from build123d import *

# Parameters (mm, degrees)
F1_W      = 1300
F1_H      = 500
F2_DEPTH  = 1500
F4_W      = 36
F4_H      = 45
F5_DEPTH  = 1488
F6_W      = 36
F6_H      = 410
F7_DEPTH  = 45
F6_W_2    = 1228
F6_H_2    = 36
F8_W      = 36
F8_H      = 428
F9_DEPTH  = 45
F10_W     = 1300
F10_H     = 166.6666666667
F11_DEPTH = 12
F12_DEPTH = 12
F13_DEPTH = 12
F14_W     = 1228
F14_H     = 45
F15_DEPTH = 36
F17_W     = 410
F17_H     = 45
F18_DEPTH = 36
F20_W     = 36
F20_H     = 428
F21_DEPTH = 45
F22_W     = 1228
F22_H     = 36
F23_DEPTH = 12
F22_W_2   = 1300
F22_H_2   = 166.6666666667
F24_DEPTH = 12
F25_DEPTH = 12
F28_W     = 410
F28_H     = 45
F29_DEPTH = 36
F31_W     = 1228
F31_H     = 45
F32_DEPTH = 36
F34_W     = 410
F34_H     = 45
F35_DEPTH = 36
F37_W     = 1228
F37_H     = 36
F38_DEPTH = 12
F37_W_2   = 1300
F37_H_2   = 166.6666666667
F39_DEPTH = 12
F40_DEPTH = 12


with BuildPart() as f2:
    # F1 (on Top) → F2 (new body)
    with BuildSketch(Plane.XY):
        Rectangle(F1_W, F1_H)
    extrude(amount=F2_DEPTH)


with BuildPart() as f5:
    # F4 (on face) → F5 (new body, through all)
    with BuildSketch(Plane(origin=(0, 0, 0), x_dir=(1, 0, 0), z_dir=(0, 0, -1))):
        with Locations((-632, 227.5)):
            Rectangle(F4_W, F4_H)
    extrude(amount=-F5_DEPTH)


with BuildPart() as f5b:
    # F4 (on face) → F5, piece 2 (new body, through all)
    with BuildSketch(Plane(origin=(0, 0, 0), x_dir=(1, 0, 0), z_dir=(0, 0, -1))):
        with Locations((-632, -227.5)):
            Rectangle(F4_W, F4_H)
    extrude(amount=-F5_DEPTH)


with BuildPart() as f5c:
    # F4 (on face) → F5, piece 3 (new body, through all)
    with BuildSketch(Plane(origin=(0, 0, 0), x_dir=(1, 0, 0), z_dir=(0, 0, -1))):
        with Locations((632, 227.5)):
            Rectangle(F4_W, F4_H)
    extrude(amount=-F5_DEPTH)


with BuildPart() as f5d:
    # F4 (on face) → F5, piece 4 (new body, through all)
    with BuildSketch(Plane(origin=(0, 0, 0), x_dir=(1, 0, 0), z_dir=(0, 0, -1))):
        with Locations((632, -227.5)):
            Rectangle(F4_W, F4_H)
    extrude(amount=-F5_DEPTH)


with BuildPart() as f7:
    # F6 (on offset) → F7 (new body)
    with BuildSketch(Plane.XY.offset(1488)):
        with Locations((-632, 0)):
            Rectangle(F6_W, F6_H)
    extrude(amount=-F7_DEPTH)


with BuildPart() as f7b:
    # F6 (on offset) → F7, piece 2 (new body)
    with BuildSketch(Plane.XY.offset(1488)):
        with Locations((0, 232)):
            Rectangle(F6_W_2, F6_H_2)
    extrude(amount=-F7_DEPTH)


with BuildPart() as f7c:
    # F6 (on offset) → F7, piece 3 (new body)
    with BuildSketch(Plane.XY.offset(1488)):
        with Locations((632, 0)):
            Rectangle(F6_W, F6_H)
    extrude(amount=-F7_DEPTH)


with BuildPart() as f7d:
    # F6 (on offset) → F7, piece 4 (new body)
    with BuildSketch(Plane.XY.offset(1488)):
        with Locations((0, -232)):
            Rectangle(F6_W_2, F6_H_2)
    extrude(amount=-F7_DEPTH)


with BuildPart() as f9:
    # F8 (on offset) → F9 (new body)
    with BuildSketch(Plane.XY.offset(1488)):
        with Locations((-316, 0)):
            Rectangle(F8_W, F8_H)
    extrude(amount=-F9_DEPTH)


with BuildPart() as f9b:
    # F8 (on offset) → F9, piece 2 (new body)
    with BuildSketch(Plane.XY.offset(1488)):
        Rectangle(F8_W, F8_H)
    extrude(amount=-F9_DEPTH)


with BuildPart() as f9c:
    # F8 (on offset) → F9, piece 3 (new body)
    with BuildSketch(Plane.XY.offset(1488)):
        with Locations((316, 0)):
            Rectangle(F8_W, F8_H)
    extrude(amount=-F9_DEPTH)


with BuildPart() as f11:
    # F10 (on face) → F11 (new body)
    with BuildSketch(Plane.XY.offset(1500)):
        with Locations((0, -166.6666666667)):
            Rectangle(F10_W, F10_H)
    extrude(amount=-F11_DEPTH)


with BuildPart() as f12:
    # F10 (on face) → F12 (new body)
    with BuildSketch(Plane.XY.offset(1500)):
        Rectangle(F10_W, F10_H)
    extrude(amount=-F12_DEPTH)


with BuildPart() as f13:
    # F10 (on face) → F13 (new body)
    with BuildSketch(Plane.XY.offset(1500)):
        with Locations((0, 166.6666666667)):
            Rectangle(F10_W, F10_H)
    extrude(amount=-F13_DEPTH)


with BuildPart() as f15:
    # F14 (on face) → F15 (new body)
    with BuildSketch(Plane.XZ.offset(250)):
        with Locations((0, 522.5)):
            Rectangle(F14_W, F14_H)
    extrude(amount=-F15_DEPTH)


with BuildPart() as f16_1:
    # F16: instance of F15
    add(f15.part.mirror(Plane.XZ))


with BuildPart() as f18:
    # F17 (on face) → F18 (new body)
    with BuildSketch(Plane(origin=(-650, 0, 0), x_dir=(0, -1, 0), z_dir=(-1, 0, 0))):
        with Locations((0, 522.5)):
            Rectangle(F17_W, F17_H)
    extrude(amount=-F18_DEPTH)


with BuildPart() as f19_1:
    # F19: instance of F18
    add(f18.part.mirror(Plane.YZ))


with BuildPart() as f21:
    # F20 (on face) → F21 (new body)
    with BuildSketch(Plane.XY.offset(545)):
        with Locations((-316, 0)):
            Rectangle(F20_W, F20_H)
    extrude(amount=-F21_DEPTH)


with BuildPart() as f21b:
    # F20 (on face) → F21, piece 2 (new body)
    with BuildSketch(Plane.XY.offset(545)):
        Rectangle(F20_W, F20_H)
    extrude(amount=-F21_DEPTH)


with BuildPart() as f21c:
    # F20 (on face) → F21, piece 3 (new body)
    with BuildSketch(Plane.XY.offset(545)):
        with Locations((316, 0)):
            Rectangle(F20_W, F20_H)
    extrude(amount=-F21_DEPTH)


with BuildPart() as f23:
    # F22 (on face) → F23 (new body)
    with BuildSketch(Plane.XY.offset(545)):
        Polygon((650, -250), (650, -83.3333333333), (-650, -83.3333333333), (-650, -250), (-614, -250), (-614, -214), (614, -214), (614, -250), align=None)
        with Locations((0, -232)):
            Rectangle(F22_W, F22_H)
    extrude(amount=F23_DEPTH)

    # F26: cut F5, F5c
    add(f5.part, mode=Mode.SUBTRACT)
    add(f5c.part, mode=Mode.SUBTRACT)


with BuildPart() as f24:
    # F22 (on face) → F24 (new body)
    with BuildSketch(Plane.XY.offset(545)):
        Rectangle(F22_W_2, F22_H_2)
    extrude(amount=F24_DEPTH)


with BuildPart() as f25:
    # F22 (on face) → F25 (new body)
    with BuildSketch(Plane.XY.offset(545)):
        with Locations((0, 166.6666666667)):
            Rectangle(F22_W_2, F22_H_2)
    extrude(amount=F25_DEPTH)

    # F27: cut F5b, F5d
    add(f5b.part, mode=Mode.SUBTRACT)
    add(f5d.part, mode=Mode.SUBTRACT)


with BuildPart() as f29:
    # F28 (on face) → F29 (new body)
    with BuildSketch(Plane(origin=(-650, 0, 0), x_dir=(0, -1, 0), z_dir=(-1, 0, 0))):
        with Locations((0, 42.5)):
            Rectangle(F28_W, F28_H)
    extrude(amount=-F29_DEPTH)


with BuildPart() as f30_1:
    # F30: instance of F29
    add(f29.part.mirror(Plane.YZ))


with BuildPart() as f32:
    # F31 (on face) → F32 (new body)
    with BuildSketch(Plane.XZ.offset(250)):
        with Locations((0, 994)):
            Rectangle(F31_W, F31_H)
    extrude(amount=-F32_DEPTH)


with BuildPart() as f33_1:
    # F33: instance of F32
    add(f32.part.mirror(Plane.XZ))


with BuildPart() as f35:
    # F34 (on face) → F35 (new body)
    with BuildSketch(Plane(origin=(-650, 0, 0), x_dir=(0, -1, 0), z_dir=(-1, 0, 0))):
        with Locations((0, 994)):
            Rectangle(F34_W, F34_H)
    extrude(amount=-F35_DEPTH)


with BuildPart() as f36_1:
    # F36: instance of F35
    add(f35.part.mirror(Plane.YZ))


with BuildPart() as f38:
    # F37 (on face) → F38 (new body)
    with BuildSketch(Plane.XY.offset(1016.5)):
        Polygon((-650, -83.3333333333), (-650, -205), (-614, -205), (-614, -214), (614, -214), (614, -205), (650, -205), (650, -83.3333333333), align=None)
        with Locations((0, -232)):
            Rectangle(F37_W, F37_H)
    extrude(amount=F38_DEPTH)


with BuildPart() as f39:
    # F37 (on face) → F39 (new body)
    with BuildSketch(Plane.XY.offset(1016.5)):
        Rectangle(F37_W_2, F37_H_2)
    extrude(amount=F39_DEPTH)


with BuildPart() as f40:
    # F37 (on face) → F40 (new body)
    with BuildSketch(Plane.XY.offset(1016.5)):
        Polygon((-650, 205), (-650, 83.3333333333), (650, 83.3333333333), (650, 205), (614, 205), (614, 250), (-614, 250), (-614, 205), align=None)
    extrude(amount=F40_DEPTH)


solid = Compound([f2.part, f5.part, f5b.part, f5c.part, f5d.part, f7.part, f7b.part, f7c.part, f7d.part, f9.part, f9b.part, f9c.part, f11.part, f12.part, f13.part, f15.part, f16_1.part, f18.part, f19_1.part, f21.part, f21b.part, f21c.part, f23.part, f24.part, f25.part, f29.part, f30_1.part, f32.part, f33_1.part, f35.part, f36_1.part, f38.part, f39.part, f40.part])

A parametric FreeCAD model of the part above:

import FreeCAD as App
import Part
import Sketcher


def add_polygon(sketch, points):
    """Adds a closed chain of lines whose ends are joined by coincident constraints."""
    first, n = sketch.GeometryCount, len(points)
    for a, b in zip(points, points[1:] + points[:1]):
        sketch.addGeometry(Part.LineSegment(App.Vector(*a, 0), App.Vector(*b, 0)), False)
    for i in range(n):
        sketch.addConstraint(Sketcher.Constraint("Coincident", first + i, 2, first + (i + 1) % n, 1))

doc = App.newDocument("Part")
body = doc.addObject("PartDesign::Body", "Body")

# Sketch on XY plane
sketch1 = body.newObject("Sketcher::SketchObject", "Sketch")
sketch1.AttachmentSupport = (doc.getObject("XY_Plane"), [""])
sketch1.MapMode = "FlatFace"
add_polygon(sketch1, [(-650, 250), (-650, -250), (650, -250), (650, 250)])  # lines 0-3
sketch1.addConstraint([
    Sketcher.Constraint("Vertical", 0),
    Sketcher.Constraint("Horizontal", 1),
    Sketcher.Constraint("Vertical", 2),
    Sketcher.Constraint("Horizontal", 3),
    Sketcher.Constraint("Symmetric", 0, 2, 2, 2, -1, 1),
    Sketcher.Constraint("DistanceX", 1, 1, 1, 2, 1300.0),
    Sketcher.Constraint("DistanceY", 0, 2, 0, 1, 500.0),
])
pad1 = body.newObject("PartDesign::Pad", "Pad")
pad1.Profile = sketch1
pad1.Length = 1500
body2 = doc.addObject("PartDesign::Body", "Body001")

# Sketch on XY plane
sketch2 = body2.newObject("Sketcher::SketchObject", "Sketch001")
sketch2.AttachmentSupport = (doc.getObject("XY_Plane001"), [""])
sketch2.MapMode = "FlatFace"
add_polygon(sketch2, [(-650, -250), (-650, -205), (-614, -205), (-614, -250)])  # lines 0-3
sketch2.addConstraint([
    Sketcher.Constraint("Vertical", 0),
    Sketcher.Constraint("Horizontal", 1),
    Sketcher.Constraint("Vertical", 2),
    Sketcher.Constraint("Horizontal", 3),
    Sketcher.Constraint("DistanceX", 1, 1, 1, 2, 36.0),
    Sketcher.Constraint("DistanceY", 0, 1, 0, 2, 45.0),
    Sketcher.Constraint("DistanceX", 0, 2, -1, 1, 650.0),
    Sketcher.Constraint("DistanceY", 0, 2, -1, 1, 205.0),
])
pad2 = body2.newObject("PartDesign::Pad", "Pad001")
pad2.Profile = sketch2
pad2.Length = 1488
body3 = doc.addObject("PartDesign::Body", "Body002")

# Sketch on XY plane
sketch3 = body3.newObject("Sketcher::SketchObject", "Sketch002")
sketch3.AttachmentSupport = (doc.getObject("XY_Plane002"), [""])
sketch3.MapMode = "FlatFace"
add_polygon(sketch3, [(-650, 205), (-650, 250), (-614, 250), (-614, 205)])  # lines 0-3
sketch3.addConstraint([
    Sketcher.Constraint("Vertical", 0),
    Sketcher.Constraint("Horizontal", 1),
    Sketcher.Constraint("Vertical", 2),
    Sketcher.Constraint("Horizontal", 3),
    Sketcher.Constraint("DistanceX", 1, 1, 1, 2, 36.0),
    Sketcher.Constraint("DistanceY", 0, 1, 0, 2, 45.0),
    Sketcher.Constraint("DistanceX", 0, 2, -1, 1, 650.0),
    Sketcher.Constraint("DistanceY", -1, 1, 0, 2, 250.0),
])
pad3 = body3.newObject("PartDesign::Pad", "Pad002")
pad3.Profile = sketch3
pad3.Length = 1488
body4 = doc.addObject("PartDesign::Body", "Body003")

# Sketch on XY plane
sketch4 = body4.newObject("Sketcher::SketchObject", "Sketch003")
sketch4.AttachmentSupport = (doc.getObject("XY_Plane003"), [""])
sketch4.MapMode = "FlatFace"
add_polygon(sketch4, [(614, -250), (614, -205), (650, -205), (650, -250)])  # lines 0-3
sketch4.addConstraint([
    Sketcher.Constraint("Vertical", 0),
    Sketcher.Constraint("Horizontal", 1),
    Sketcher.Constraint("Vertical", 2),
    Sketcher.Constraint("Horizontal", 3),
    Sketcher.Constraint("DistanceX", 1, 1, 1, 2, 36.0),
    Sketcher.Constraint("DistanceY", 0, 1, 0, 2, 45.0),
    Sketcher.Constraint("DistanceX", -1, 1, 0, 2, 614.0),
    Sketcher.Constraint("DistanceY", 0, 2, -1, 1, 205.0),
])
pad4 = body4.newObject("PartDesign::Pad", "Pad003")
pad4.Profile = sketch4
pad4.Length = 1488
body5 = doc.addObject("PartDesign::Body", "Body004")

# Sketch on XY plane
sketch5 = body5.newObject("Sketcher::SketchObject", "Sketch004")
sketch5.AttachmentSupport = (doc.getObject("XY_Plane004"), [""])
sketch5.MapMode = "FlatFace"
add_polygon(sketch5, [(614, 205), (614, 250), (650, 250), (650, 205)])  # lines 0-3
sketch5.addConstraint([
    Sketcher.Constraint("Vertical", 0),
    Sketcher.Constraint("Horizontal", 1),
    Sketcher.Constraint("Vertical", 2),
    Sketcher.Constraint("Horizontal", 3),
    Sketcher.Constraint("DistanceX", 1, 1, 1, 2, 36.0),
    Sketcher.Constraint("DistanceY", 0, 1, 0, 2, 45.0),
    Sketcher.Constraint("DistanceX", -1, 1, 0, 2, 614.0),
    Sketcher.Constraint("DistanceY", -1, 1, 0, 2, 250.0),
])
pad5 = body5.newObject("PartDesign::Pad", "Pad004")
pad5.Profile = sketch5
pad5.Length = 1488
body6 = doc.addObject("PartDesign::Body", "Body005")

# Sketch on XY plane
sketch6 = body6.newObject("Sketcher::SketchObject", "Sketch005")
sketch6.AttachmentSupport = (doc.getObject("XY_Plane005"), [""])
sketch6.MapMode = "FlatFace"
sketch6.AttachmentOffset = App.Placement(App.Vector(0, 0, 1488), App.Rotation())
add_polygon(sketch6, [(-650, 205), (-650, -205), (-614, -205), (-614, 205)])  # lines 0-3
sketch6.addConstraint([
    Sketcher.Constraint("Vertical", 0),
    Sketcher.Constraint("Horizontal", 1),
    Sketcher.Constraint("Vertical", 2),
    Sketcher.Constraint("Horizontal", 3),
    Sketcher.Constraint("DistanceX", 1, 1, 1, 2, 36.0),
    Sketcher.Constraint("DistanceY", 0, 2, 0, 1, 410.0),
    Sketcher.Constraint("DistanceX", 0, 2, -1, 1, 650.0),
    Sketcher.Constraint("DistanceY", 0, 2, -1, 1, 205.0),
])
pad6 = body6.newObject("PartDesign::Pad", "Pad005")
pad6.Profile = sketch6
pad6.Length = 45
pad6.Reversed = True
body7 = doc.addObject("PartDesign::Body", "Body006")

# Sketch on XY plane
sketch7 = body7.newObject("Sketcher::SketchObject", "Sketch006")
sketch7.AttachmentSupport = (doc.getObject("XY_Plane006"), [""])
sketch7.MapMode = "FlatFace"
sketch7.AttachmentOffset = App.Placement(App.Vector(0, 0, 1488), App.Rotation())
add_polygon(sketch7, [(-614, 250), (-614, 214), (614, 214), (614, 250)])  # lines 0-3
sketch7.addConstraint([
    Sketcher.Constraint("Vertical", 0),
    Sketcher.Constraint("Horizontal", 1),
    Sketcher.Constraint("Vertical", 2),
    Sketcher.Constraint("Horizontal", 3),
    Sketcher.Constraint("DistanceX", 1, 1, 1, 2, 1228.0),
    Sketcher.Constraint("DistanceY", 0, 2, 0, 1, 36.0),
    Sketcher.Constraint("DistanceX", 0, 2, -1, 1, 614.0),
    Sketcher.Constraint("DistanceY", -1, 1, 0, 2, 214.0),
])
pad7 = body7.newObject("PartDesign::Pad", "Pad006")
pad7.Profile = sketch7
pad7.Length = 45
pad7.Reversed = True
body8 = doc.addObject("PartDesign::Body", "Body007")

# Sketch on XY plane
sketch8 = body8.newObject("Sketcher::SketchObject", "Sketch007")
sketch8.AttachmentSupport = (doc.getObject("XY_Plane007"), [""])
sketch8.MapMode = "FlatFace"
sketch8.AttachmentOffset = App.Placement(App.Vector(0, 0, 1488), App.Rotation())
add_polygon(sketch8, [(614, 205), (614, -205), (650, -205), (650, 205)])  # lines 0-3
sketch8.addConstraint([
    Sketcher.Constraint("Vertical", 0),
    Sketcher.Constraint("Horizontal", 1),
    Sketcher.Constraint("Vertical", 2),
    Sketcher.Constraint("Horizontal", 3),
    Sketcher.Constraint("DistanceX", 1, 1, 1, 2, 36.0),
    Sketcher.Constraint("DistanceY", 0, 2, 0, 1, 410.0),
    Sketcher.Constraint("DistanceX", -1, 1, 0, 2, 614.0),
    Sketcher.Constraint("DistanceY", 0, 2, -1, 1, 205.0),
])
pad8 = body8.newObject("PartDesign::Pad", "Pad007")
pad8.Profile = sketch8
pad8.Length = 45
pad8.Reversed = True
body9 = doc.addObject("PartDesign::Body", "Body008")

# Sketch on XY plane
sketch9 = body9.newObject("Sketcher::SketchObject", "Sketch008")
sketch9.AttachmentSupport = (doc.getObject("XY_Plane008"), [""])
sketch9.MapMode = "FlatFace"
sketch9.AttachmentOffset = App.Placement(App.Vector(0, 0, 1488), App.Rotation())
add_polygon(sketch9, [(-614, -214), (-614, -250), (614, -250), (614, -214)])  # lines 0-3
sketch9.addConstraint([
    Sketcher.Constraint("Vertical", 0),
    Sketcher.Constraint("Horizontal", 1),
    Sketcher.Constraint("Vertical", 2),
    Sketcher.Constraint("Horizontal", 3),
    Sketcher.Constraint("DistanceX", 1, 1, 1, 2, 1228.0),
    Sketcher.Constraint("DistanceY", 0, 2, 0, 1, 36.0),
    Sketcher.Constraint("DistanceX", 0, 2, -1, 1, 614.0),
    Sketcher.Constraint("DistanceY", 0, 2, -1, 1, 250.0),
])
pad9 = body9.newObject("PartDesign::Pad", "Pad008")
pad9.Profile = sketch9
pad9.Length = 45
pad9.Reversed = True
body10 = doc.addObject("PartDesign::Body", "Body009")

# Sketch on XY plane
sketch10 = body10.newObject("Sketcher::SketchObject", "Sketch009")
sketch10.AttachmentSupport = (doc.getObject("XY_Plane009"), [""])
sketch10.MapMode = "FlatFace"
sketch10.AttachmentOffset = App.Placement(App.Vector(0, 0, 1488), App.Rotation())
add_polygon(sketch10, [(-334, 214), (-334, -214), (-298, -214), (-298, 214)])  # lines 0-3
sketch10.addConstraint([
    Sketcher.Constraint("Vertical", 0),
    Sketcher.Constraint("Horizontal", 1),
    Sketcher.Constraint("Vertical", 2),
    Sketcher.Constraint("Horizontal", 3),
    Sketcher.Constraint("DistanceX", 1, 1, 1, 2, 36.0),
    Sketcher.Constraint("DistanceY", 0, 2, 0, 1, 428.0),
    Sketcher.Constraint("DistanceX", 0, 2, -1, 1, 334.0),
    Sketcher.Constraint("DistanceY", 0, 2, -1, 1, 214.0),
])
pad10 = body10.newObject("PartDesign::Pad", "Pad009")
pad10.Profile = sketch10
pad10.Length = 45
pad10.Reversed = True
body11 = doc.addObject("PartDesign::Body", "Body010")

# Sketch on XY plane
sketch11 = body11.newObject("Sketcher::SketchObject", "Sketch010")
sketch11.AttachmentSupport = (doc.getObject("XY_Plane010"), [""])
sketch11.MapMode = "FlatFace"
sketch11.AttachmentOffset = App.Placement(App.Vector(0, 0, 1488), App.Rotation())
add_polygon(sketch11, [(-18, 214), (-18, -214), (18, -214), (18, 214)])  # lines 0-3
sketch11.addConstraint([
    Sketcher.Constraint("Vertical", 0),
    Sketcher.Constraint("Horizontal", 1),
    Sketcher.Constraint("Vertical", 2),
    Sketcher.Constraint("Horizontal", 3),
    Sketcher.Constraint("Symmetric", 0, 2, 2, 2, -1, 1),
    Sketcher.Constraint("DistanceX", 1, 1, 1, 2, 36.0),
    Sketcher.Constraint("DistanceY", 0, 2, 0, 1, 428.0),
])
pad11 = body11.newObject("PartDesign::Pad", "Pad010")
pad11.Profile = sketch11
pad11.Length = 45
pad11.Reversed = True
body12 = doc.addObject("PartDesign::Body", "Body011")

# Sketch on XY plane
sketch12 = body12.newObject("Sketcher::SketchObject", "Sketch011")
sketch12.AttachmentSupport = (doc.getObject("XY_Plane011"), [""])
sketch12.MapMode = "FlatFace"
sketch12.AttachmentOffset = App.Placement(App.Vector(0, 0, 1488), App.Rotation())
add_polygon(sketch12, [(298, 214), (298, -214), (334, -214), (334, 214)])  # lines 0-3
sketch12.addConstraint([
    Sketcher.Constraint("Vertical", 0),
    Sketcher.Constraint("Horizontal", 1),
    Sketcher.Constraint("Vertical", 2),
    Sketcher.Constraint("Horizontal", 3),
    Sketcher.Constraint("DistanceX", 1, 1, 1, 2, 36.0),
    Sketcher.Constraint("DistanceY", 0, 2, 0, 1, 428.0),
    Sketcher.Constraint("DistanceX", -1, 1, 0, 2, 298.0),
    Sketcher.Constraint("DistanceY", 0, 2, -1, 1, 214.0),
])
pad12 = body12.newObject("PartDesign::Pad", "Pad011")
pad12.Profile = sketch12
pad12.Length = 45
pad12.Reversed = True
body13 = doc.addObject("PartDesign::Body", "Body012")

# Sketch on XY plane
sketch13 = body13.newObject("Sketcher::SketchObject", "Sketch012")
sketch13.AttachmentSupport = (doc.getObject("XY_Plane012"), [""])
sketch13.MapMode = "FlatFace"
sketch13.AttachmentOffset = App.Placement(App.Vector(0, 0, 1500), App.Rotation())
add_polygon(sketch13, [(-650, -83), (-650, -250), (650, -250), (650, -83)])  # lines 0-3
sketch13.addConstraint([
    Sketcher.Constraint("Vertical", 0),
    Sketcher.Constraint("Horizontal", 1),
    Sketcher.Constraint("Vertical", 2),
    Sketcher.Constraint("Horizontal", 3),
    Sketcher.Constraint("DistanceX", 1, 1, 1, 2, 1300.0),
    Sketcher.Constraint("DistanceX", 0, 2, -1, 1, 650.0),
    Sketcher.Constraint("DistanceY", 0, 2, -1, 1, 250.0),
    Sketcher.Constraint("DistanceY", 0, 2, 0, 1, 166.666667),
])
pad13 = body13.newObject("PartDesign::Pad", "Pad012")
pad13.Profile = sketch13
pad13.Length = 12
pad13.Reversed = True
body14 = doc.addObject("PartDesign::Body", "Body013")

# Sketch on XY plane
sketch14 = body14.newObject("Sketcher::SketchObject", "Sketch013")
sketch14.AttachmentSupport = (doc.getObject("XY_Plane013"), [""])
sketch14.MapMode = "FlatFace"
sketch14.AttachmentOffset = App.Placement(App.Vector(0, 0, 1500), App.Rotation())
add_polygon(sketch14, [(-650, 83), (-650, -83), (650, -83), (650, 83)])  # lines 0-3
sketch14.addConstraint([
    Sketcher.Constraint("Vertical", 0),
    Sketcher.Constraint("Horizontal", 1),
    Sketcher.Constraint("Vertical", 2),
    Sketcher.Constraint("Horizontal", 3),
    Sketcher.Constraint("Symmetric", 0, 2, 2, 2, -1, 1),
    Sketcher.Constraint("DistanceX", 1, 1, 1, 2, 1300.0),
    Sketcher.Constraint("DistanceY", 0, 2, 0, 1, 166.666667),
])
pad14 = body14.newObject("PartDesign::Pad", "Pad013")
pad14.Profile = sketch14
pad14.Length = 12
pad14.Reversed = True
body15 = doc.addObject("PartDesign::Body", "Body014")

# Sketch on XY plane
sketch15 = body15.newObject("Sketcher::SketchObject", "Sketch014")
sketch15.AttachmentSupport = (doc.getObject("XY_Plane014"), [""])
sketch15.MapMode = "FlatFace"
sketch15.AttachmentOffset = App.Placement(App.Vector(0, 0, 1500), App.Rotation())
add_polygon(sketch15, [(-650, 250), (-650, 83), (650, 83), (650, 250)])  # lines 0-3
sketch15.addConstraint([
    Sketcher.Constraint("Vertical", 0),
    Sketcher.Constraint("Horizontal", 1),
    Sketcher.Constraint("Vertical", 2),
    Sketcher.Constraint("Horizontal", 3),
    Sketcher.Constraint("DistanceX", 1, 1, 1, 2, 1300.0),
    Sketcher.Constraint("DistanceX", 0, 2, -1, 1, 650.0),
    Sketcher.Constraint("DistanceY", -1, 1, 2, 2, 250.0),
    Sketcher.Constraint("DistanceY", 0, 2, 0, 1, 166.666667),
])
pad15 = body15.newObject("PartDesign::Pad", "Pad014")
pad15.Profile = sketch15
pad15.Length = 12
pad15.Reversed = True
body16 = doc.addObject("PartDesign::Body", "Body015")

# Sketch on XZ plane
sketch16 = body16.newObject("Sketcher::SketchObject", "Sketch015")
sketch16.AttachmentSupport = (doc.getObject("XZ_Plane015"), [""])
sketch16.MapMode = "FlatFace"
sketch16.AttachmentOffset = App.Placement(App.Vector(0, 0, 250), App.Rotation())
add_polygon(sketch16, [(-614, 545), (-614, 500), (614, 500), (614, 545)])  # lines 0-3
sketch16.addConstraint([
    Sketcher.Constraint("Vertical", 0),
    Sketcher.Constraint("Horizontal", 1),
    Sketcher.Constraint("Vertical", 2),
    Sketcher.Constraint("Horizontal", 3),
    Sketcher.Constraint("DistanceX", 1, 1, 1, 2, 1228.0),
    Sketcher.Constraint("DistanceY", 0, 2, 0, 1, 45.0),
    Sketcher.Constraint("DistanceX", 0, 2, -1, 1, 614.0),
    Sketcher.Constraint("DistanceY", -1, 1, 0, 2, 500.0),
])
pad16 = body16.newObject("PartDesign::Pad", "Pad015")
pad16.Profile = sketch16
pad16.Length = 36
pad16.Reversed = True
body17 = doc.addObject("PartDesign::Body", "Body016")
doc.recompute()

mirroring = doc.addObject("Part::Mirroring", "Mirroring")
mirroring.Source = body16
mirroring.Base = App.Vector(0, 0, 0)
mirroring.Normal = App.Vector(0, -1, 0)
body17.BaseFeature = mirroring
doc.recompute()
body18 = doc.addObject("PartDesign::Body", "Body017")

# Sketch on YZ plane
sketch17 = body18.newObject("Sketcher::SketchObject", "Sketch016")
sketch17.AttachmentSupport = (doc.getObject("YZ_Plane017"), [""])
sketch17.MapMode = "FlatFace"
sketch17.AttachmentOffset = App.Placement(App.Vector(0, 0, -650), App.Rotation())
add_polygon(sketch17, [(205, 545), (205, 500), (-205, 500), (-205, 545)])  # lines 0-3
sketch17.addConstraint([
    Sketcher.Constraint("Vertical", 0),
    Sketcher.Constraint("Horizontal", 1),
    Sketcher.Constraint("Vertical", 2),
    Sketcher.Constraint("Horizontal", 3),
    Sketcher.Constraint("DistanceX", 1, 2, 1, 1, 410.0),
    Sketcher.Constraint("DistanceY", 0, 2, 0, 1, 45.0),
    Sketcher.Constraint("DistanceX", -1, 1, 0, 2, 205.0),
    Sketcher.Constraint("DistanceY", -1, 1, 0, 2, 500.0),
])
pad17 = body18.newObject("PartDesign::Pad", "Pad016")
pad17.Profile = sketch17
pad17.Length = 36
body19 = doc.addObject("PartDesign::Body", "Body018")
doc.recompute()

mirroring2 = doc.addObject("Part::Mirroring", "Mirroring001")
mirroring2.Source = body18
mirroring2.Base = App.Vector(0, 0, 0)
mirroring2.Normal = App.Vector(1, 0, 0)
body19.BaseFeature = mirroring2
doc.recompute()
body20 = doc.addObject("PartDesign::Body", "Body019")

# Sketch on XY plane
sketch18 = body20.newObject("Sketcher::SketchObject", "Sketch017")
sketch18.AttachmentSupport = (doc.getObject("XY_Plane019"), [""])
sketch18.MapMode = "FlatFace"
sketch18.AttachmentOffset = App.Placement(App.Vector(0, 0, 545), App.Rotation())
add_polygon(sketch18, [(-334, 214), (-334, -214), (-298, -214), (-298, 214)])  # lines 0-3
sketch18.addConstraint([
    Sketcher.Constraint("Vertical", 0),
    Sketcher.Constraint("Horizontal", 1),
    Sketcher.Constraint("Vertical", 2),
    Sketcher.Constraint("Horizontal", 3),
    Sketcher.Constraint("DistanceX", 1, 1, 1, 2, 36.0),
    Sketcher.Constraint("DistanceY", 0, 2, 0, 1, 428.0),
    Sketcher.Constraint("DistanceX", 0, 2, -1, 1, 334.0),
    Sketcher.Constraint("DistanceY", 0, 2, -1, 1, 214.0),
])
pad18 = body20.newObject("PartDesign::Pad", "Pad017")
pad18.Profile = sketch18
pad18.Length = 45
pad18.Reversed = True
body21 = doc.addObject("PartDesign::Body", "Body020")

# Sketch on XY plane
sketch19 = body21.newObject("Sketcher::SketchObject", "Sketch018")
sketch19.AttachmentSupport = (doc.getObject("XY_Plane020"), [""])
sketch19.MapMode = "FlatFace"
sketch19.AttachmentOffset = App.Placement(App.Vector(0, 0, 545), App.Rotation())
add_polygon(sketch19, [(-18, 214), (-18, -214), (18, -214), (18, 214)])  # lines 0-3
sketch19.addConstraint([
    Sketcher.Constraint("Vertical", 0),
    Sketcher.Constraint("Horizontal", 1),
    Sketcher.Constraint("Vertical", 2),
    Sketcher.Constraint("Horizontal", 3),
    Sketcher.Constraint("Symmetric", 0, 2, 2, 2, -1, 1),
    Sketcher.Constraint("DistanceX", 1, 1, 1, 2, 36.0),
    Sketcher.Constraint("DistanceY", 0, 2, 0, 1, 428.0),
])
pad19 = body21.newObject("PartDesign::Pad", "Pad018")
pad19.Profile = sketch19
pad19.Length = 45
pad19.Reversed = True
body22 = doc.addObject("PartDesign::Body", "Body021")

# Sketch on XY plane
sketch20 = body22.newObject("Sketcher::SketchObject", "Sketch019")
sketch20.AttachmentSupport = (doc.getObject("XY_Plane021"), [""])
sketch20.MapMode = "FlatFace"
sketch20.AttachmentOffset = App.Placement(App.Vector(0, 0, 545), App.Rotation())
add_polygon(sketch20, [(298, 214), (298, -214), (334, -214), (334, 214)])  # lines 0-3
sketch20.addConstraint([
    Sketcher.Constraint("Vertical", 0),
    Sketcher.Constraint("Horizontal", 1),
    Sketcher.Constraint("Vertical", 2),
    Sketcher.Constraint("Horizontal", 3),
    Sketcher.Constraint("DistanceX", 1, 1, 1, 2, 36.0),
    Sketcher.Constraint("DistanceY", 0, 2, 0, 1, 428.0),
    Sketcher.Constraint("DistanceX", -1, 1, 0, 2, 298.0),
    Sketcher.Constraint("DistanceY", 0, 2, -1, 1, 214.0),
])
pad20 = body22.newObject("PartDesign::Pad", "Pad019")
pad20.Profile = sketch20
pad20.Length = 45
pad20.Reversed = True
body23 = doc.addObject("PartDesign::Body", "Body022")

# Sketch on XY plane
sketch21 = body23.newObject("Sketcher::SketchObject", "Sketch020")
sketch21.AttachmentSupport = (doc.getObject("XY_Plane022"), [""])
sketch21.MapMode = "FlatFace"
sketch21.AttachmentOffset = App.Placement(App.Vector(0, 0, 545), App.Rotation())
add_polygon(sketch21, [(650, -250), (650, -83), (-650, -83), (-650, -250)])  # lines 0-3
sketch21.addConstraint([
    Sketcher.Constraint("Vertical", 0),
    Sketcher.Constraint("Horizontal", 1),
    Sketcher.Constraint("Vertical", 2),
    Sketcher.Constraint("Horizontal", 3),
    Sketcher.Constraint("DistanceX", 1, 2, 1, 1, 1300.0),
    Sketcher.Constraint("DistanceX", -1, 1, 0, 2, 650.0),
    Sketcher.Constraint("DistanceY", 2, 2, -1, 1, 250.0),
    Sketcher.Constraint("DistanceY", 0, 1, 0, 2, 166.666667),
])
pad21 = body23.newObject("PartDesign::Pad", "Pad020")
pad21.Profile = sketch21
pad21.Length = 12
doc.recompute()

body24 = doc.addObject("PartDesign::Body", "Body023")
body24.BaseFeature = body2
boolean = body23.newObject("PartDesign::Boolean", "Boolean")
boolean.Type = "Cut"
boolean.addObjects([body24])
doc.recompute()

body25 = doc.addObject("PartDesign::Body", "Body024")
body25.BaseFeature = body4
boolean2 = body23.newObject("PartDesign::Boolean", "Boolean001")
boolean2.Type = "Cut"
boolean2.addObjects([body25])
doc.recompute()
body26 = doc.addObject("PartDesign::Body", "Body025")

# Sketch on XY plane
sketch22 = body26.newObject("Sketcher::SketchObject", "Sketch021")
sketch22.AttachmentSupport = (doc.getObject("XY_Plane025"), [""])
sketch22.MapMode = "FlatFace"
sketch22.AttachmentOffset = App.Placement(App.Vector(0, 0, 545), App.Rotation())
add_polygon(sketch22, [(-650, 83), (-650, -83), (650, -83), (650, 83)])  # lines 0-3
sketch22.addConstraint([
    Sketcher.Constraint("Vertical", 0),
    Sketcher.Constraint("Horizontal", 1),
    Sketcher.Constraint("Vertical", 2),
    Sketcher.Constraint("Horizontal", 3),
    Sketcher.Constraint("Symmetric", 0, 2, 2, 2, -1, 1),
    Sketcher.Constraint("DistanceX", 1, 1, 1, 2, 1300.0),
    Sketcher.Constraint("DistanceY", 0, 2, 0, 1, 166.666667),
])
pad22 = body26.newObject("PartDesign::Pad", "Pad021")
pad22.Profile = sketch22
pad22.Length = 12
body27 = doc.addObject("PartDesign::Body", "Body026")

# Sketch on XY plane
sketch23 = body27.newObject("Sketcher::SketchObject", "Sketch022")
sketch23.AttachmentSupport = (doc.getObject("XY_Plane026"), [""])
sketch23.MapMode = "FlatFace"
sketch23.AttachmentOffset = App.Placement(App.Vector(0, 0, 545), App.Rotation())
add_polygon(sketch23, [(-650, 250), (-650, 83), (650, 83), (650, 250)])  # lines 0-3
sketch23.addConstraint([
    Sketcher.Constraint("Vertical", 0),
    Sketcher.Constraint("Horizontal", 1),
    Sketcher.Constraint("Vertical", 2),
    Sketcher.Constraint("Horizontal", 3),
    Sketcher.Constraint("DistanceX", 1, 1, 1, 2, 1300.0),
    Sketcher.Constraint("DistanceX", 0, 2, -1, 1, 650.0),
    Sketcher.Constraint("DistanceY", -1, 1, 2, 2, 250.0),
    Sketcher.Constraint("DistanceY", 0, 2, 0, 1, 166.666667),
])
pad23 = body27.newObject("PartDesign::Pad", "Pad022")
pad23.Profile = sketch23
pad23.Length = 12
doc.recompute()

body28 = doc.addObject("PartDesign::Body", "Body027")
body28.BaseFeature = body3
boolean3 = body27.newObject("PartDesign::Boolean", "Boolean002")
boolean3.Type = "Cut"
boolean3.addObjects([body28])
doc.recompute()

body29 = doc.addObject("PartDesign::Body", "Body028")
body29.BaseFeature = body5
boolean4 = body27.newObject("PartDesign::Boolean", "Boolean003")
boolean4.Type = "Cut"
boolean4.addObjects([body29])
doc.recompute()
body30 = doc.addObject("PartDesign::Body", "Body029")

# Sketch on YZ plane
sketch24 = body30.newObject("Sketcher::SketchObject", "Sketch023")
sketch24.AttachmentSupport = (doc.getObject("YZ_Plane029"), [""])
sketch24.MapMode = "FlatFace"
sketch24.AttachmentOffset = App.Placement(App.Vector(0, 0, -650), App.Rotation())
add_polygon(sketch24, [(205, 65), (205, 20), (-205, 20), (-205, 65)])  # lines 0-3
sketch24.addConstraint([
    Sketcher.Constraint("Vertical", 0),
    Sketcher.Constraint("Horizontal", 1),
    Sketcher.Constraint("Vertical", 2),
    Sketcher.Constraint("Horizontal", 3),
    Sketcher.Constraint("DistanceX", 1, 2, 1, 1, 410.0),
    Sketcher.Constraint("DistanceY", 0, 2, 0, 1, 45.0),
    Sketcher.Constraint("DistanceX", -1, 1, 0, 2, 205.0),
    Sketcher.Constraint("DistanceY", -1, 1, 0, 2, 20.0),
])
pad24 = body30.newObject("PartDesign::Pad", "Pad023")
pad24.Profile = sketch24
pad24.Length = 36
body31 = doc.addObject("PartDesign::Body", "Body030")
doc.recompute()

mirroring3 = doc.addObject("Part::Mirroring", "Mirroring002")
mirroring3.Source = body30
mirroring3.Base = App.Vector(0, 0, 0)
mirroring3.Normal = App.Vector(1, 0, 0)
body31.BaseFeature = mirroring3
doc.recompute()
body32 = doc.addObject("PartDesign::Body", "Body031")

# Sketch on XZ plane
sketch25 = body32.newObject("Sketcher::SketchObject", "Sketch024")
sketch25.AttachmentSupport = (doc.getObject("XZ_Plane031"), [""])
sketch25.MapMode = "FlatFace"
sketch25.AttachmentOffset = App.Placement(App.Vector(0, 0, 250), App.Rotation())
add_polygon(sketch25, [(-614, 1016), (-614, 972), (614, 972), (614, 1016)])  # lines 0-3
sketch25.addConstraint([
    Sketcher.Constraint("Vertical", 0),
    Sketcher.Constraint("Horizontal", 1),
    Sketcher.Constraint("Vertical", 2),
    Sketcher.Constraint("Horizontal", 3),
    Sketcher.Constraint("DistanceX", 1, 1, 1, 2, 1228.0),
    Sketcher.Constraint("DistanceY", 0, 2, 0, 1, 45.0),
    Sketcher.Constraint("DistanceX", 0, 2, -1, 1, 614.0),
    Sketcher.Constraint("DistanceY", -1, 1, 0, 2, 971.5),
])
pad25 = body32.newObject("PartDesign::Pad", "Pad024")
pad25.Profile = sketch25
pad25.Length = 36
pad25.Reversed = True
body33 = doc.addObject("PartDesign::Body", "Body032")
doc.recompute()

mirroring4 = doc.addObject("Part::Mirroring", "Mirroring003")
mirroring4.Source = body32
mirroring4.Base = App.Vector(0, 0, 0)
mirroring4.Normal = App.Vector(0, -1, 0)
body33.BaseFeature = mirroring4
doc.recompute()
body34 = doc.addObject("PartDesign::Body", "Body033")

# Sketch on YZ plane
sketch26 = body34.newObject("Sketcher::SketchObject", "Sketch025")
sketch26.AttachmentSupport = (doc.getObject("YZ_Plane033"), [""])
sketch26.MapMode = "FlatFace"
sketch26.AttachmentOffset = App.Placement(App.Vector(0, 0, -650), App.Rotation())
add_polygon(sketch26, [(205, 1016), (205, 972), (-205, 972), (-205, 1016)])  # lines 0-3
sketch26.addConstraint([
    Sketcher.Constraint("Vertical", 0),
    Sketcher.Constraint("Horizontal", 1),
    Sketcher.Constraint("Vertical", 2),
    Sketcher.Constraint("Horizontal", 3),
    Sketcher.Constraint("DistanceX", 1, 2, 1, 1, 410.0),
    Sketcher.Constraint("DistanceY", 0, 2, 0, 1, 45.0),
    Sketcher.Constraint("DistanceX", -1, 1, 0, 2, 205.0),
    Sketcher.Constraint("DistanceY", -1, 1, 0, 2, 971.5),
])
pad26 = body34.newObject("PartDesign::Pad", "Pad025")
pad26.Profile = sketch26
pad26.Length = 36
body35 = doc.addObject("PartDesign::Body", "Body034")
doc.recompute()

mirroring5 = doc.addObject("Part::Mirroring", "Mirroring004")
mirroring5.Source = body34
mirroring5.Base = App.Vector(0, 0, 0)
mirroring5.Normal = App.Vector(1, 0, 0)
body35.BaseFeature = mirroring5
doc.recompute()
body36 = doc.addObject("PartDesign::Body", "Body035")

# Sketch on XY plane
sketch27 = body36.newObject("Sketcher::SketchObject", "Sketch026")
sketch27.AttachmentSupport = (doc.getObject("XY_Plane035"), [""])
sketch27.MapMode = "FlatFace"
sketch27.AttachmentOffset = App.Placement(App.Vector(0, 0, 1016.5), App.Rotation())
add_polygon(sketch27, [(-650, -83), (-650, -205), (-614, -205), (-614, -250), (614, -250), (614, -205), (650, -205), (650, -83)])  # lines 0-7
sketch27.addConstraint([
    Sketcher.Constraint("Vertical", 0),
    Sketcher.Constraint("Horizontal", 1),
    Sketcher.Constraint("Vertical", 2),
    Sketcher.Constraint("Horizontal", 3),
    Sketcher.Constraint("Vertical", 4),
    Sketcher.Constraint("Horizontal", 5),
    Sketcher.Constraint("Vertical", 6),
    Sketcher.Constraint("Horizontal", 7),
    Sketcher.Constraint("Symmetric", 1, 2, 4, 2, -2),
    Sketcher.Constraint("Equal", 1, 5),
    Sketcher.Constraint("DistanceX", 1, 1, 1, 2, 36.0),
    Sketcher.Constraint("DistanceX", 3, 1, 3, 2, 1228.0),
    Sketcher.Constraint("DistanceY", 2, 2, 2, 1, 45.0),
    Sketcher.Constraint("DistanceY", 0, 2, -1, 1, 205.0),
    Sketcher.Constraint("DistanceY", 0, 2, 0, 1, 121.666667),
])
pad27 = body36.newObject("PartDesign::Pad", "Pad026")
pad27.Profile = sketch27
pad27.Length = 12
body37 = doc.addObject("PartDesign::Body", "Body036")

# Sketch on XY plane
sketch28 = body37.newObject("Sketcher::SketchObject", "Sketch027")
sketch28.AttachmentSupport = (doc.getObject("XY_Plane036"), [""])
sketch28.MapMode = "FlatFace"
sketch28.AttachmentOffset = App.Placement(App.Vector(0, 0, 1016.5), App.Rotation())
add_polygon(sketch28, [(-650, 83), (-650, -83), (650, -83), (650, 83)])  # lines 0-3
sketch28.addConstraint([
    Sketcher.Constraint("Vertical", 0),
    Sketcher.Constraint("Horizontal", 1),
    Sketcher.Constraint("Vertical", 2),
    Sketcher.Constraint("Horizontal", 3),
    Sketcher.Constraint("Symmetric", 0, 2, 2, 2, -1, 1),
    Sketcher.Constraint("DistanceX", 1, 1, 1, 2, 1300.0),
    Sketcher.Constraint("DistanceY", 0, 2, 0, 1, 166.666667),
])
pad28 = body37.newObject("PartDesign::Pad", "Pad027")
pad28.Profile = sketch28
pad28.Length = 12
body38 = doc.addObject("PartDesign::Body", "Body037")

# Sketch on XY plane
sketch29 = body38.newObject("Sketcher::SketchObject", "Sketch028")
sketch29.AttachmentSupport = (doc.getObject("XY_Plane037"), [""])
sketch29.MapMode = "FlatFace"
sketch29.AttachmentOffset = App.Placement(App.Vector(0, 0, 1016.5), App.Rotation())
add_polygon(sketch29, [(-650, 205), (-650, 83), (650, 83), (650, 205), (614, 205), (614, 250), (-614, 250), (-614, 205)])  # lines 0-7
sketch29.addConstraint([
    Sketcher.Constraint("Vertical", 0),
    Sketcher.Constraint("Horizontal", 1),
    Sketcher.Constraint("Vertical", 2),
    Sketcher.Constraint("Horizontal", 3),
    Sketcher.Constraint("Vertical", 4),
    Sketcher.Constraint("Horizontal", 5),
    Sketcher.Constraint("Vertical", 6),
    Sketcher.Constraint("Horizontal", 7),
    Sketcher.Constraint("Symmetric", 3, 2, 6, 2, -2),
    Sketcher.Constraint("Equal", 3, 7),
    Sketcher.Constraint("DistanceX", 1, 1, 1, 2, 1300.0),
    Sketcher.Constraint("DistanceX", 3, 2, 3, 1, 36.0),
    Sketcher.Constraint("DistanceY", 4, 1, 4, 2, 45.0),
    Sketcher.Constraint("DistanceY", -1, 1, 2, 2, 205.0),
    Sketcher.Constraint("DistanceY", 0, 2, 0, 1, 121.666667),
])
pad29 = body38.newObject("PartDesign::Pad", "Pad028")
pad29.Profile = sketch29
pad29.Length = 12

doc.recompute()
